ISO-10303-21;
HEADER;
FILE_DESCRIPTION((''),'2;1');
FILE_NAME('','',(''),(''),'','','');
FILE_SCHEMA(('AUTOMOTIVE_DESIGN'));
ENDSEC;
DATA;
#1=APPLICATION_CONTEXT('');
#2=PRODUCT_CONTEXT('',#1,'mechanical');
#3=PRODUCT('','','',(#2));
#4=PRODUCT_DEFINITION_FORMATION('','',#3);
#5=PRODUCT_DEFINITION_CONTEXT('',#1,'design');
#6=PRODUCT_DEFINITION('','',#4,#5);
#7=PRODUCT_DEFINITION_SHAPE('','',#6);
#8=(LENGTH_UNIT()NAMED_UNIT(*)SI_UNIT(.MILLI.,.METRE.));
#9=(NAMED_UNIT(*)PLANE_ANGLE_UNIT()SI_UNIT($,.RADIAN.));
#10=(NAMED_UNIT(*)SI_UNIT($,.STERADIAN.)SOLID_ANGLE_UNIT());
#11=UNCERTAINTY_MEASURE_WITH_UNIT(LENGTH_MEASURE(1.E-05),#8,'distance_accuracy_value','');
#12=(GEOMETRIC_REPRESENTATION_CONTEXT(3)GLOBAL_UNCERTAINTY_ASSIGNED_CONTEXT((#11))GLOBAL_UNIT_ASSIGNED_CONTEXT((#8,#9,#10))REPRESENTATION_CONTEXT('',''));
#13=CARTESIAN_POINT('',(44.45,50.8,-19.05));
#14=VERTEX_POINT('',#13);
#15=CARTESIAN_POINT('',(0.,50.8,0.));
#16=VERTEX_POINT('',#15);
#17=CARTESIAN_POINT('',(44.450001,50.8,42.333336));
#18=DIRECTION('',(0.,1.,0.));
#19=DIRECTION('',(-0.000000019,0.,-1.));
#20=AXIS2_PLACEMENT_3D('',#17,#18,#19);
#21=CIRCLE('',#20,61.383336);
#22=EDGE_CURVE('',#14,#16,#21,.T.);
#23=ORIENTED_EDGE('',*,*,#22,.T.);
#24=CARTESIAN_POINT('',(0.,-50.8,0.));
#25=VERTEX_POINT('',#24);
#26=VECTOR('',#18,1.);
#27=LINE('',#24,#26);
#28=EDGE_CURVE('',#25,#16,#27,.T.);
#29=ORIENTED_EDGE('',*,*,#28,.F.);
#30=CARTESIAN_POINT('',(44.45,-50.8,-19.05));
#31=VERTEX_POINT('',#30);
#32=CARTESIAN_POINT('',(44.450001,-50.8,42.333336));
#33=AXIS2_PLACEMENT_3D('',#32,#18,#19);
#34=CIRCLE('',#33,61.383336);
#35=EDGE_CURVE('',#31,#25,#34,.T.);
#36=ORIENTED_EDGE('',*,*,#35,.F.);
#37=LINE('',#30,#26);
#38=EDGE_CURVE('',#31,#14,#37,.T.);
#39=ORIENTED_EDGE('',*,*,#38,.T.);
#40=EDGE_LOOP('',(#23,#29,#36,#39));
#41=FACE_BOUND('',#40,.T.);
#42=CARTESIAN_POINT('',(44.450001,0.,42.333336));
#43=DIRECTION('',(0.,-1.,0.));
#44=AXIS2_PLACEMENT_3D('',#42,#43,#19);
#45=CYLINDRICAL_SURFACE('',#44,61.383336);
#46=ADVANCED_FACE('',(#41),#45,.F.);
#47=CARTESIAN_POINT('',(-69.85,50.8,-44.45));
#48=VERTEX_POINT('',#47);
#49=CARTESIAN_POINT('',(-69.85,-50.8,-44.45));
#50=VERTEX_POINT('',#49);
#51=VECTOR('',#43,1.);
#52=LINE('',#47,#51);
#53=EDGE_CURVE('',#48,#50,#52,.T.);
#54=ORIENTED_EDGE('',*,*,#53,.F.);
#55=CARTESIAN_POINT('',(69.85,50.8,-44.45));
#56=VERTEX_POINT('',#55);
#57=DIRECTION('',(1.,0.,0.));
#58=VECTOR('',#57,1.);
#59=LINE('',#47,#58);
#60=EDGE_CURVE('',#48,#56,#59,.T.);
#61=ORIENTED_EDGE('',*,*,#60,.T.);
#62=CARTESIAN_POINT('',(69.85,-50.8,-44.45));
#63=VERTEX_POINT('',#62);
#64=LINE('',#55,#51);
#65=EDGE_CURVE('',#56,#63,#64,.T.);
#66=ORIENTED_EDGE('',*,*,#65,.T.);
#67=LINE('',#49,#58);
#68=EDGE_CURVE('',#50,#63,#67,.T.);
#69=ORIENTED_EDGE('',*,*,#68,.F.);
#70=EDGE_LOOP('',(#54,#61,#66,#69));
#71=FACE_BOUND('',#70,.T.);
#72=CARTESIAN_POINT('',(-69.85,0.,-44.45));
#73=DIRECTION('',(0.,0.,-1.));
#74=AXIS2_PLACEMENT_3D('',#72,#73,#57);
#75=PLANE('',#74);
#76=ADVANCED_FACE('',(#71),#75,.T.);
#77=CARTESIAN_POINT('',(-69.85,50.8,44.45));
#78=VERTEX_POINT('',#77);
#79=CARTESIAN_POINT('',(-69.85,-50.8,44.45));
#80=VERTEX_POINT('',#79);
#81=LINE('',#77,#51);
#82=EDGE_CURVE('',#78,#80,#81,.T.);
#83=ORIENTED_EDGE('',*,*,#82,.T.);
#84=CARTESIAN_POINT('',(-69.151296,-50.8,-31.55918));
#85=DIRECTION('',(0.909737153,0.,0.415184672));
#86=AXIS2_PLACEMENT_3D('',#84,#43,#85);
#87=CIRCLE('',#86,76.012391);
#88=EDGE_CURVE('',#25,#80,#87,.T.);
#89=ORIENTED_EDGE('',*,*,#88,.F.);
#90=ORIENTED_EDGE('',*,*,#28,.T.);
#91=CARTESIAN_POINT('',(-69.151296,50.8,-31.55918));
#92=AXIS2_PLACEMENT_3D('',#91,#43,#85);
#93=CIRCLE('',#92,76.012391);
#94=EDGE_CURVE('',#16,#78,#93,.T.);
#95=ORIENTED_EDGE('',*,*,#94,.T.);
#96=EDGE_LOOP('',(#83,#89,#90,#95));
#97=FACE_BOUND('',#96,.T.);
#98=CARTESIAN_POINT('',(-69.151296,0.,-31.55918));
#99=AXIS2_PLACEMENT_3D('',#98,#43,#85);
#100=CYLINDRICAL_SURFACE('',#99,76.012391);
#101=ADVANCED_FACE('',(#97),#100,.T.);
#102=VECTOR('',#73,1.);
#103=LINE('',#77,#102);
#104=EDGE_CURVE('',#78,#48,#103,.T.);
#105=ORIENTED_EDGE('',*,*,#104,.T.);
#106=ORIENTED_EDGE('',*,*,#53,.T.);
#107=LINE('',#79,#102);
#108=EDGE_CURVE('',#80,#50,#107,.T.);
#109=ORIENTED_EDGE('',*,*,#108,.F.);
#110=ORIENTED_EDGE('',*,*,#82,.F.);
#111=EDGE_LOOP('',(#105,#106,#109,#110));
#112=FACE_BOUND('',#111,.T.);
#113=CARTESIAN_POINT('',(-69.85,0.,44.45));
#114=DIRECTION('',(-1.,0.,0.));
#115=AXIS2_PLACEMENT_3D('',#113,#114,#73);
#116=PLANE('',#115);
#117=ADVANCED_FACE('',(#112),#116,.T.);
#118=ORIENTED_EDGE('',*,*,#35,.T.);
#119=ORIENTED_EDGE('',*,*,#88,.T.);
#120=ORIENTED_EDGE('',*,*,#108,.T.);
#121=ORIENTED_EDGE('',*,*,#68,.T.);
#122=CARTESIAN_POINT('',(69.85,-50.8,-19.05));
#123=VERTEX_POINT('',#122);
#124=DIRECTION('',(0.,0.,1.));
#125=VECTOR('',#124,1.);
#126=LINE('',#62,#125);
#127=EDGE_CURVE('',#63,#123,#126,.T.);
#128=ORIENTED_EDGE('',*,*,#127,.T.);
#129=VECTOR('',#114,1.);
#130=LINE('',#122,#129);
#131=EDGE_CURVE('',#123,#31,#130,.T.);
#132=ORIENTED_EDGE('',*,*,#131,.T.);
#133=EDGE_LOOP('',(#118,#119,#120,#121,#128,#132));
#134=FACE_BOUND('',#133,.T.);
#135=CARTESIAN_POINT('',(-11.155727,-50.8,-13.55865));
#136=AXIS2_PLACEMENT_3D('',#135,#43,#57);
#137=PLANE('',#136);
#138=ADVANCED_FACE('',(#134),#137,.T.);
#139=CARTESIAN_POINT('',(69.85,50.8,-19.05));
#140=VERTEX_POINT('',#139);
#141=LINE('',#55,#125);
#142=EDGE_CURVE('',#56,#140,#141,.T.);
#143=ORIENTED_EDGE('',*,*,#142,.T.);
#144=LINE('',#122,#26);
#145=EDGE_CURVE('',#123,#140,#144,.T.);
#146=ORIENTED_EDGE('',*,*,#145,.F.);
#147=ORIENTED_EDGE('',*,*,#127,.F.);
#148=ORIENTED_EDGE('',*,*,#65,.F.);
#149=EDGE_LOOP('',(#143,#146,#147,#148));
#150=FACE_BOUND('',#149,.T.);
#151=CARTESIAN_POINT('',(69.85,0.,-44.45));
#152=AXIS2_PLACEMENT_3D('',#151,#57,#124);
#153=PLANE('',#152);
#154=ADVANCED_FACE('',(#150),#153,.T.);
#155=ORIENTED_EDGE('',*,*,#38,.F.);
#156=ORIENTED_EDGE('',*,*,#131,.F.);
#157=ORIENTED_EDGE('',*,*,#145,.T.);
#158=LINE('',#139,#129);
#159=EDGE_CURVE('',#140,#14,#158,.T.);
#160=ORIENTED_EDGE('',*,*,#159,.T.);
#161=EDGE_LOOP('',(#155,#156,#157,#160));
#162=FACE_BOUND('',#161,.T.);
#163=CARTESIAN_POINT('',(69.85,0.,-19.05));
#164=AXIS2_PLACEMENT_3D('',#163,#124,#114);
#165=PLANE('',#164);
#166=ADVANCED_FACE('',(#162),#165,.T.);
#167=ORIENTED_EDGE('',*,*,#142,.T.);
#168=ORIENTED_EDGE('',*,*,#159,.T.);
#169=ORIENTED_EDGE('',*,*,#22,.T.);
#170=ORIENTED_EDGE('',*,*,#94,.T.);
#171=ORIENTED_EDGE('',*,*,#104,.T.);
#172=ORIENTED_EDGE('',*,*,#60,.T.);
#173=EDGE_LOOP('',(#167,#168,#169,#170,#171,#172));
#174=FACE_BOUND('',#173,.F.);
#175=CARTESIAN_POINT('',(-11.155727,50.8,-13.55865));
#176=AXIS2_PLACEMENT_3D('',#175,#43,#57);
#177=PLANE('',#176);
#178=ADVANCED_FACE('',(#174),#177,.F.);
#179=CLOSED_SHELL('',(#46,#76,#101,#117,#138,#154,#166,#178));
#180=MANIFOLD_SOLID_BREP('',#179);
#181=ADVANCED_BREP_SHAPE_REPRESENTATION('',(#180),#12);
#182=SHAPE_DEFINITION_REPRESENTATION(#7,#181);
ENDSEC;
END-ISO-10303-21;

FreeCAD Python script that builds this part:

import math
import FreeCAD as App
import Part
import Sketcher
Q = App.Units.Quantity

doc = App.newDocument("Part")
body = doc.addObject("PartDesign::Body", "Body")

sketch1 = doc.addObject("Sketcher::SketchObject", "Sketch")
body.addObject(sketch1)
sketch1.AttachmentSupport = (doc.XZ_Plane, [""])
sketch1.MapMode = "FlatFace"
sketch1.addGeometry(Part.ArcOfCircle(Part.Circle(App.Vector(-69, -32, 0), App.Vector(0, 0, 1), 76), math.radians(25), math.radians(91)), False)
sketch1.addGeometry(Part.LineSegment(App.Vector(-70, 44, 0), App.Vector(-70, -44, 0)), False)
sketch1.addGeometry(Part.LineSegment(App.Vector(-70, -44, 0), App.Vector(70, -44, 0)), False)
sketch1.addGeometry(Part.LineSegment(App.Vector(70, -44, 0), App.Vector(70, -19, 0)), False)
sketch1.addGeometry(Part.LineSegment(App.Vector(70, -19, 0), App.Vector(44, -19, 0)), False)
sketch1.addGeometry(Part.ArcOfCircle(Part.Circle(App.Vector(44, 42, 0), App.Vector(0, 0, 1), 61), math.radians(-136), math.radians(-90)), False)
sketch1.addConstraint(Sketcher.Constraint("Coincident", 0, 2, 1, 1))
sketch1.addConstraint(Sketcher.Constraint("Coincident", 1, 2, 2, 1))
sketch1.addConstraint(Sketcher.Constraint("Coincident", 2, 2, 3, 1))
sketch1.addConstraint(Sketcher.Constraint("Coincident", 3, 2, 4, 1))
sketch1.addConstraint(Sketcher.Constraint("Tangent", 4, 2, 5, 2))
sketch1.addConstraint(Sketcher.Constraint("Coincident", 5, 1, 0, 1))
sketch1.addConstraint(Sketcher.Constraint("Vertical", 1))
sketch1.addConstraint(Sketcher.Constraint("Horizontal", 2))
sketch1.addConstraint(Sketcher.Constraint("Vertical", 3))
sketch1.addConstraint(Sketcher.Constraint("Horizontal", 4))
sketch1.addConstraint(Sketcher.Constraint("Coincident", 5, 1, -1, 1))
sketch1.addConstraint(Sketcher.Constraint("Symmetric", 0, 2, 2, 2, -1, 1))
sketch1.addConstraint(Sketcher.Constraint("Equal", 4, 3))
sketch1.addConstraint(Sketcher.Constraint("DistanceX", 4, 2, 4, 1, Q("1 in")))
sketch1.addConstraint(Sketcher.Constraint("DistanceX", 2, 1, 2, 2, Q("5.5 in")))
sketch1.addConstraint(Sketcher.Constraint("DistanceY", 1, 2, 1, 1, Q("3.5 in")))
sketch1.addConstraint(Sketcher.Constraint("Radius", 0, Q("76.012391 mm")))
pad1 = doc.addObject("PartDesign::Pad", "Pad")
body.addObject(pad1)
pad1.Profile = sketch1
pad1.Type = "TwoLengths"
pad1.Length = Q("2 in")
pad1.Length2 = Q("2 in")

doc.recompute()
